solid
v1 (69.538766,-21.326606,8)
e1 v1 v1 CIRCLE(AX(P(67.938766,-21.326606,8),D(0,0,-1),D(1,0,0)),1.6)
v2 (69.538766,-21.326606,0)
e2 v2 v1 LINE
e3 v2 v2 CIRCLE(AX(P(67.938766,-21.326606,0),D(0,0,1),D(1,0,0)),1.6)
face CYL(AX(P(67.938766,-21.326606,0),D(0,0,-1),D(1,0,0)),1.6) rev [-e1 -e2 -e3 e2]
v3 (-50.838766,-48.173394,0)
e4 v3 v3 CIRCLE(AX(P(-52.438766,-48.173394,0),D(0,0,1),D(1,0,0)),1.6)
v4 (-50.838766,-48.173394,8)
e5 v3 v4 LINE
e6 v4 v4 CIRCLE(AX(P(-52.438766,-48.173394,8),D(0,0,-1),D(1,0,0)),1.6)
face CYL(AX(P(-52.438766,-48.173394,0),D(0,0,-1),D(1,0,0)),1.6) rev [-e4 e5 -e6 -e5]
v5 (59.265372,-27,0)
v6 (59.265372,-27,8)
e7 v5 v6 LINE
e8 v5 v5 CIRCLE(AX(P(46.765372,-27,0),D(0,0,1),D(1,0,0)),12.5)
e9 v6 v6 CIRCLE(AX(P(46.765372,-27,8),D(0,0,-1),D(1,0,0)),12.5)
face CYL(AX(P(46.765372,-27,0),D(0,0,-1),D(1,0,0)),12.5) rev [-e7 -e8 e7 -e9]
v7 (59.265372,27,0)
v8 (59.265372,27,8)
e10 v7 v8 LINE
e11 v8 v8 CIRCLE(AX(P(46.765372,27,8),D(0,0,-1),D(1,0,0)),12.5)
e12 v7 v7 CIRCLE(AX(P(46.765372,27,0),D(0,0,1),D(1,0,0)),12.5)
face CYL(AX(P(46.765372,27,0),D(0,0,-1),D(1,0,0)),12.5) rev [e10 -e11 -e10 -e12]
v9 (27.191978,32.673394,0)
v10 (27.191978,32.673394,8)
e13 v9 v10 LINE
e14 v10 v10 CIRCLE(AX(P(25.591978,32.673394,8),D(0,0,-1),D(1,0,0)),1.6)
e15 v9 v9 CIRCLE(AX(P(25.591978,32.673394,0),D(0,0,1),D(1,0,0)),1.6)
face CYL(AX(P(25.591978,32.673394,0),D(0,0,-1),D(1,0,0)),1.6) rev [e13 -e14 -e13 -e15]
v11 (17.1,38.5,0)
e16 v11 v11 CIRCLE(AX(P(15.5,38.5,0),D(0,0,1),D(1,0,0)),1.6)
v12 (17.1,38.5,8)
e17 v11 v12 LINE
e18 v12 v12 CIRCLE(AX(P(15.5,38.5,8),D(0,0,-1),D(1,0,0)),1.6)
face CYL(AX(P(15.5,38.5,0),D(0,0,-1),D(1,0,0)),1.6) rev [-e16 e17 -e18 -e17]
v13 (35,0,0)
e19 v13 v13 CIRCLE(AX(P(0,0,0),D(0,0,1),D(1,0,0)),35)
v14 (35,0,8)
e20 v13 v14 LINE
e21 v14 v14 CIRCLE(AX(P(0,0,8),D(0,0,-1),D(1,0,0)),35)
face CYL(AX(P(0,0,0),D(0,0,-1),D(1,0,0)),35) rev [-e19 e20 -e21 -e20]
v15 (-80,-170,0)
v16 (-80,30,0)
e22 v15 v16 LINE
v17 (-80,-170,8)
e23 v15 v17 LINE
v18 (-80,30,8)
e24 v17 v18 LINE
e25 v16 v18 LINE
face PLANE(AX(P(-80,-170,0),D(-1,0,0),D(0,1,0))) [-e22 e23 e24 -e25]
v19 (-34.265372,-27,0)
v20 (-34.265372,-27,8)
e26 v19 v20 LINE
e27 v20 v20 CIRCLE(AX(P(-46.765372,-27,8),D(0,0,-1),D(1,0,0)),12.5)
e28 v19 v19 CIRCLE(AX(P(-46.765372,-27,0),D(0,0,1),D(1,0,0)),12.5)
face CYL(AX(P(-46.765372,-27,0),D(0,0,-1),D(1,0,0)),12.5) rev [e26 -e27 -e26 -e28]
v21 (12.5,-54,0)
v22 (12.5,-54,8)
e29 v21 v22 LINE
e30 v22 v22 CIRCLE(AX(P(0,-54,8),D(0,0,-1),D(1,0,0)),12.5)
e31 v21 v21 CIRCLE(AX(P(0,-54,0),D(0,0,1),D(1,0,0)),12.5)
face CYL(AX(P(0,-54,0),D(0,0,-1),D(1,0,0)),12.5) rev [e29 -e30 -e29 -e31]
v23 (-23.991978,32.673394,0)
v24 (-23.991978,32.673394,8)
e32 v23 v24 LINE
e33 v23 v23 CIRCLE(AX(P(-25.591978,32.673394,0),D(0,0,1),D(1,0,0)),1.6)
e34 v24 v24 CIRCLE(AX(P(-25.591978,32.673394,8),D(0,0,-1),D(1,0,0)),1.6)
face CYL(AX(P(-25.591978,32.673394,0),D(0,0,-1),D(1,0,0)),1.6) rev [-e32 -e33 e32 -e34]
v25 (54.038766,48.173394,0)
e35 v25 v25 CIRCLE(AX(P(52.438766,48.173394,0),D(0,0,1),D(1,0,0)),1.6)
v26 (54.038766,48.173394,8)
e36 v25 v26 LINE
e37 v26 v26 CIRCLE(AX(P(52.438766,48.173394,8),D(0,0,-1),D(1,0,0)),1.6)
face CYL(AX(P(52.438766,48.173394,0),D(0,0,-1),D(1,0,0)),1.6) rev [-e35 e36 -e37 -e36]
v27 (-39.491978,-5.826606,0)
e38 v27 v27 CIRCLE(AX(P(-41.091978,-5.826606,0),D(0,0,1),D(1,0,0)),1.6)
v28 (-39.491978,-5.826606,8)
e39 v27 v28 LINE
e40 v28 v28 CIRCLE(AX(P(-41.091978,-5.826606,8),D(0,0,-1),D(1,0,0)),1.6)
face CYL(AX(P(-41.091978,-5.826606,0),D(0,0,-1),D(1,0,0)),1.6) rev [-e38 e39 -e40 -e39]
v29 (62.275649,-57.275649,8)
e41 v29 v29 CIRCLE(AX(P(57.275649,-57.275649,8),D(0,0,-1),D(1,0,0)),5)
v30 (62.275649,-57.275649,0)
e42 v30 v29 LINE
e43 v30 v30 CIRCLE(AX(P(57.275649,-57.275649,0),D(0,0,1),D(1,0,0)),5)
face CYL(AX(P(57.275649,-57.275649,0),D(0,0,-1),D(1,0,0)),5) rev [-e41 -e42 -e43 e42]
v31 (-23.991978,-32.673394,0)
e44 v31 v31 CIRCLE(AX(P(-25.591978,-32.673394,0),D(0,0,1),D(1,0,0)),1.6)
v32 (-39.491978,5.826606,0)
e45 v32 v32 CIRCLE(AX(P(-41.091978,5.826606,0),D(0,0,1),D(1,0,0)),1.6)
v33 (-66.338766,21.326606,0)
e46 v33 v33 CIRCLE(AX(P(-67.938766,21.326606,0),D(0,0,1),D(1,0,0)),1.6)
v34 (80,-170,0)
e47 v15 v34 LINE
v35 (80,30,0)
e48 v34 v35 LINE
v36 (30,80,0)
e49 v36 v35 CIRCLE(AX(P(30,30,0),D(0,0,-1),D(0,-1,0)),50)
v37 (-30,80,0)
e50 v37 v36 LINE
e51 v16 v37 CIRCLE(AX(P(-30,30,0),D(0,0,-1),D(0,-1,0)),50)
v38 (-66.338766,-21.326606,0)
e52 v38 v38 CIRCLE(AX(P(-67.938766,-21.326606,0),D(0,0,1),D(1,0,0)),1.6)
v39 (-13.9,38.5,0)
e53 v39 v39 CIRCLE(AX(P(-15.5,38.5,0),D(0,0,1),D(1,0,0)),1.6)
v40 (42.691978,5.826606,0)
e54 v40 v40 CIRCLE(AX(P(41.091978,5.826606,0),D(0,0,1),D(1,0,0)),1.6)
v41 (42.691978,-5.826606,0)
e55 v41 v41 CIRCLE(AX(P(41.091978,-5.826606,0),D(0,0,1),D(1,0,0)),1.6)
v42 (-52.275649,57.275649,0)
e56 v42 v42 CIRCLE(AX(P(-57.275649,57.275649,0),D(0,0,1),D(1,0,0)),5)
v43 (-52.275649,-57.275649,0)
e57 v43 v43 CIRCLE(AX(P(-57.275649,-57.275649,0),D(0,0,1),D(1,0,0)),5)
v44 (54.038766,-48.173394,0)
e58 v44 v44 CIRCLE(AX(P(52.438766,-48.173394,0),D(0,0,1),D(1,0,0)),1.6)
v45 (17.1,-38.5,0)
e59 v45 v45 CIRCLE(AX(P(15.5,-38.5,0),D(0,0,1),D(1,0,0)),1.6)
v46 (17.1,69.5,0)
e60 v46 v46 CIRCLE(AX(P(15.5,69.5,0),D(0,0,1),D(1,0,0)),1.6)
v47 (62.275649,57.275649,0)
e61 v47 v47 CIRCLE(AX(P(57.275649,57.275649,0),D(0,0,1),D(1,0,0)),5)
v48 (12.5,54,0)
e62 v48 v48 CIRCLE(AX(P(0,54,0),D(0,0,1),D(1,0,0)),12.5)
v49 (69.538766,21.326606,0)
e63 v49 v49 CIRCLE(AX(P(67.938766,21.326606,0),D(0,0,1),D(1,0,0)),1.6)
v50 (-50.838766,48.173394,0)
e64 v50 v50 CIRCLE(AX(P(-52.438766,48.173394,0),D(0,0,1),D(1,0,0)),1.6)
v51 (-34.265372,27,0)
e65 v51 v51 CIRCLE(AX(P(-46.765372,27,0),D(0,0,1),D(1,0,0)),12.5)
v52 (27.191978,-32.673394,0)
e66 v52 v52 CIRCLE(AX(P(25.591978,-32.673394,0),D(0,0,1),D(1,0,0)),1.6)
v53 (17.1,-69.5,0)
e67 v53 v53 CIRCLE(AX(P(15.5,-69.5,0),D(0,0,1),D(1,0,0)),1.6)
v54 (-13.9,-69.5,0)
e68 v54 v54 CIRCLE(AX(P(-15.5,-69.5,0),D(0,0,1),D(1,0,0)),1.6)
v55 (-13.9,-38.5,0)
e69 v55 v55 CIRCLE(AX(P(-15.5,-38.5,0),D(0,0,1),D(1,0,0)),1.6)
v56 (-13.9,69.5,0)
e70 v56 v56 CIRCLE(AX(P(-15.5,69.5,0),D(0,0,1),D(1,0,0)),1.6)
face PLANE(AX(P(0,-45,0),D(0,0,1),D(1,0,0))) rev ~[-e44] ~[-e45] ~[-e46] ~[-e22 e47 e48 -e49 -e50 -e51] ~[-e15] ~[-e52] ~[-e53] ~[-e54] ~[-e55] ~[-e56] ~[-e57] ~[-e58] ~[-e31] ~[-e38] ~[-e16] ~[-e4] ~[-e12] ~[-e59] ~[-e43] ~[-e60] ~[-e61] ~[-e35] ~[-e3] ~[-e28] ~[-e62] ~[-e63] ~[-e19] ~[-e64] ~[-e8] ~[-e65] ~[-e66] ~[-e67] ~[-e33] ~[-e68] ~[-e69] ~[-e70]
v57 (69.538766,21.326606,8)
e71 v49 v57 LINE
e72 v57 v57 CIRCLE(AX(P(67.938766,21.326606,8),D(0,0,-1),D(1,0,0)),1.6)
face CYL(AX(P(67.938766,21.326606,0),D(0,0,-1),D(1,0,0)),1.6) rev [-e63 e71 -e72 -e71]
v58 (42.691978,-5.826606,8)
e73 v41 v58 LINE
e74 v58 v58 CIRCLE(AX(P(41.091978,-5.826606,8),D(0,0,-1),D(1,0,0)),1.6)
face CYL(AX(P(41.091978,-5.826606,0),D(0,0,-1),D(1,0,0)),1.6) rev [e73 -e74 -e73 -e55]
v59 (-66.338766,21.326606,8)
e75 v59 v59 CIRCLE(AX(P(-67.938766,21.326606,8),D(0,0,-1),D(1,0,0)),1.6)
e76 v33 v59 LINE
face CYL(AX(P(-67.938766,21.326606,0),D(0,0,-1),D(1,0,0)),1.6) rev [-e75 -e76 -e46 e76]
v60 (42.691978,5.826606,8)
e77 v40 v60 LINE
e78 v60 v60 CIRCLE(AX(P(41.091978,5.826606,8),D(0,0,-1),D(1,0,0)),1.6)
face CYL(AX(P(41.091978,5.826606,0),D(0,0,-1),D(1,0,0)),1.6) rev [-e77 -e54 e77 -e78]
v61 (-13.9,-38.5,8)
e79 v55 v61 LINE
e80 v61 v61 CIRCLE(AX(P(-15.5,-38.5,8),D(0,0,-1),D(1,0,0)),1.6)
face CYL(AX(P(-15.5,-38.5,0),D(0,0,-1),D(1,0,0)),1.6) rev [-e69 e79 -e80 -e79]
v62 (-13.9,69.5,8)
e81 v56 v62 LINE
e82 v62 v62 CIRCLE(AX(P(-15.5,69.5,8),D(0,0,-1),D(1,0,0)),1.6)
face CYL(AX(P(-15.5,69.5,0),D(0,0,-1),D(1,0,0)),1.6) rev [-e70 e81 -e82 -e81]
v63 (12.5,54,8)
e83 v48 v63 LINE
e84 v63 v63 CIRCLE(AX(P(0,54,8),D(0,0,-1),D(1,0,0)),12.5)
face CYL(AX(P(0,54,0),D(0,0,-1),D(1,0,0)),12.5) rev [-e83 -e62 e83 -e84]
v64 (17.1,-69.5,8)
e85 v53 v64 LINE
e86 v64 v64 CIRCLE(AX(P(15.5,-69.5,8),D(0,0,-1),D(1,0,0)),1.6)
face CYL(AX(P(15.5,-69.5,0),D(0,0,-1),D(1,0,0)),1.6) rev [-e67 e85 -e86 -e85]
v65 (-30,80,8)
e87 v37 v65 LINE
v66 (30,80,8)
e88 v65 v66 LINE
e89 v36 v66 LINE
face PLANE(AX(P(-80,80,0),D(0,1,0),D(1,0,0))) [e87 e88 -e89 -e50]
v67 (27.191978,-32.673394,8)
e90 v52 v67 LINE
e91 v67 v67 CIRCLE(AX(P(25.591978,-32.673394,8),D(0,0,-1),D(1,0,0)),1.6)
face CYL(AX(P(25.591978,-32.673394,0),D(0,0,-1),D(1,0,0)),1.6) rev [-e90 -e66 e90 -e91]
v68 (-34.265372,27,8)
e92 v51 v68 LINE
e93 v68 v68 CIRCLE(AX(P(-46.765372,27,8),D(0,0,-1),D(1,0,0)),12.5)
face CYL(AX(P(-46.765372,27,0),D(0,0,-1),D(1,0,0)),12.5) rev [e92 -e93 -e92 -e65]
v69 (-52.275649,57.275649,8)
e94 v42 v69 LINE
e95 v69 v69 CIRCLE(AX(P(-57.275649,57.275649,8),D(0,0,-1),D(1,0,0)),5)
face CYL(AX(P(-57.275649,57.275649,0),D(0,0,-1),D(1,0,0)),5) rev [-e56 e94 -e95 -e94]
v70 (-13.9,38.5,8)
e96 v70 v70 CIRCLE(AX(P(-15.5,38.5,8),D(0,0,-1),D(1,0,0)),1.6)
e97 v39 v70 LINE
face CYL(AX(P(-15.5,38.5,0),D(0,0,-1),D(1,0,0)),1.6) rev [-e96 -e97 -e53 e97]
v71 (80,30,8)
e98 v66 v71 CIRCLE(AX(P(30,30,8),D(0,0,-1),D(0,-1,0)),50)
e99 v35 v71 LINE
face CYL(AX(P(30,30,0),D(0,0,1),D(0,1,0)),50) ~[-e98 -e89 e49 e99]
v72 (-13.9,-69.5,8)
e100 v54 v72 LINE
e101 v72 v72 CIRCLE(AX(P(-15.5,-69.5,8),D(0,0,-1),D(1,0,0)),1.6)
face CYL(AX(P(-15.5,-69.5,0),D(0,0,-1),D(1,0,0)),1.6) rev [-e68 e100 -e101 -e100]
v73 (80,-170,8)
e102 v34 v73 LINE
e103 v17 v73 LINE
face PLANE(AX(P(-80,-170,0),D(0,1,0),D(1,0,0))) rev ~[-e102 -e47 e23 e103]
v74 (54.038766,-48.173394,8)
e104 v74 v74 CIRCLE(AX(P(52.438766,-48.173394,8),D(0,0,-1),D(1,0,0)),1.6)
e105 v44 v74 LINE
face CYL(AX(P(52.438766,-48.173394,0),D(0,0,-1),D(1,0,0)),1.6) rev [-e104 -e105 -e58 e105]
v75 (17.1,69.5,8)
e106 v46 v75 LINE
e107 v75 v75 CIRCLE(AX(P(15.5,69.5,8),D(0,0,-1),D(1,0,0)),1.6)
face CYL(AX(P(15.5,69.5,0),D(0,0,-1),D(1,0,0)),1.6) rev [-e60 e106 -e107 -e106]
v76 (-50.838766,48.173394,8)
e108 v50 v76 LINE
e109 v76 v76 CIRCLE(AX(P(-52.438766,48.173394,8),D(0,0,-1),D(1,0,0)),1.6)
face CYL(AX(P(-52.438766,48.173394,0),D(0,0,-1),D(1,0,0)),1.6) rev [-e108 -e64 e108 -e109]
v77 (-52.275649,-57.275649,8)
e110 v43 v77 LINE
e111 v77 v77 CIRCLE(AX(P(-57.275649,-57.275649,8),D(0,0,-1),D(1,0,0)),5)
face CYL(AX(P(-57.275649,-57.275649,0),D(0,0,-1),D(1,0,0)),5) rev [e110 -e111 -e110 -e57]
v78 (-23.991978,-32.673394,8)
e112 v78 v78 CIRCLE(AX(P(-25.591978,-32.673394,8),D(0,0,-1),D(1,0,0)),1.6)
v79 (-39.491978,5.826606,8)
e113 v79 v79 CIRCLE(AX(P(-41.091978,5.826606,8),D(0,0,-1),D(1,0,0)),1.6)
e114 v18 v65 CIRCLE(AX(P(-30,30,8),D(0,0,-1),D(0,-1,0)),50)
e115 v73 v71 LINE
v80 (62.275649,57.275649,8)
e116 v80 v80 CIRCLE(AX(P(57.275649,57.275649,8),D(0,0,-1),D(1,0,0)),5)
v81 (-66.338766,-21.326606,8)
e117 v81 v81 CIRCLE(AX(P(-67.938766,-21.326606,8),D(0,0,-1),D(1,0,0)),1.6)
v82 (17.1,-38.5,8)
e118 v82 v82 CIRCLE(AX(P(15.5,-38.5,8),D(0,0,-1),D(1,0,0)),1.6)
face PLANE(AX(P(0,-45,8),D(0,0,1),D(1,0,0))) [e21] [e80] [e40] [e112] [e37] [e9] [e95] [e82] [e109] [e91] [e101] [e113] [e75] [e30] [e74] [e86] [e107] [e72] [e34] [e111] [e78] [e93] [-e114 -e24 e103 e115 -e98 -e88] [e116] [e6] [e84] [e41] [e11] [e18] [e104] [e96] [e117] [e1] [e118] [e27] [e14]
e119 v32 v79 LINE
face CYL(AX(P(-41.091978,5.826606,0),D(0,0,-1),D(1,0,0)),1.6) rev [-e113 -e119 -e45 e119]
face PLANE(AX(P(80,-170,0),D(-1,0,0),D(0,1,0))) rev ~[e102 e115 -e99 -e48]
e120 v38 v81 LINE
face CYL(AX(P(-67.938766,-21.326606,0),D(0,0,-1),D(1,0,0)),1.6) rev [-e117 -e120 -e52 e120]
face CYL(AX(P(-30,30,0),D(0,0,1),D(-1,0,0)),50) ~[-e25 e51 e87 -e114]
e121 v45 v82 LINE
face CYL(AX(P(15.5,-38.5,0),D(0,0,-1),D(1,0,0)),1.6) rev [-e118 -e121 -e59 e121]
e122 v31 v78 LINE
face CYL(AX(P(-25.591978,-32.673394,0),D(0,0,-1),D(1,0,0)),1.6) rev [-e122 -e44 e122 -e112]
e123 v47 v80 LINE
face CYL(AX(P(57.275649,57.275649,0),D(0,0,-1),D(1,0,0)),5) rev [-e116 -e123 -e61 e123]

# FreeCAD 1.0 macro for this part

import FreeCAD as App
import Part
import Sketcher
from FreeCAD import Vector
Q = App.Units.Quantity


def edges_at(feature, points):
    """Names of the edges that pass closest to the given points."""
    edges = feature.Shape.Edges
    near = lambda p: min(range(len(edges)), key=lambda i: edges[i].distToShape(Part.Vertex(*p))[0])
    return sorted({f"Edge{near(p) + 1}" for p in points})


def add_polygon(sketch, points):
    """Adds a closed chain of lines whose ends are joined by coincident constraints."""
    first, n = sketch.GeometryCount, len(points)
    for a, b in zip(points, points[1:] + points[:1]):
        sketch.addGeometry(Part.LineSegment(App.Vector(*a, 0), App.Vector(*b, 0)), False)
    for i in range(n):
        sketch.addConstraint(Sketcher.Constraint("Coincident", first + i, 2, first + (i + 1) % n, 1))

doc = App.newDocument("Part")
params = doc.addObject("Spreadsheet::Sheet", "Params")
for row, (alias, value) in enumerate([
    ("sketch1_width", "160 mm"),
    ("sketch1_height", "250 mm"),
    ("pad1_length", "8 mm"),
    ("sketch2_diameter", "70 mm"),
    ("sketch2_diameter2", "25 mm"),
    ("sketch2_diameter3", "3.2 mm"),
    ("sketch3_diameter", "10 mm"),
    ("fillet_radius", "50 mm"),
], start=1):
    params.set(f"A{row}", alias)
    params.set(f"B{row}", "=" + value)
    params.setAlias(f"B{row}", alias)

body = doc.addObject("PartDesign::Body", "Body")

# Sketch on XY plane
sketch1 = body.newObject("Sketcher::SketchObject", "Sketch")
sketch1.AttachmentSupport = (doc.getObject("XY_Plane"), [""])
sketch1.MapMode = "FlatFace"
add_polygon(sketch1, [(-80, 80), (-80, -170), (80, -170), (80, 80)])  # lines 0-3
sketch1.addConstraint([
    Sketcher.Constraint("Vertical", 0),
    Sketcher.Constraint("Horizontal", 1),
    Sketcher.Constraint("Vertical", 2),
    Sketcher.Constraint("Horizontal", 3),
    Sketcher.Constraint("DistanceX", 1, 1, 1, 2, Q("160 mm")),
    Sketcher.Constraint("DistanceY", 0, 2, 0, 1, Q("250 mm")),
    Sketcher.Constraint("DistanceX", 0, 2, -1, 1, Q("80 mm")),
    Sketcher.Constraint("DistanceY", 0, 2, -1, 1, Q("170 mm")),
])
sketch1.setExpression("Constraints[8]", "Params.sketch1_width")
sketch1.setExpression("Constraints[9]", "Params.sketch1_height")
pad1 = body.newObject("PartDesign::Pad", "Pad")
pad1.Profile = sketch1
pad1.setExpression("Length", "Params.pad1_length")

# Sketch on XY plane
sketch2 = body.newObject("Sketcher::SketchObject", "Sketch001")
sketch2.AttachmentSupport = (doc.getObject("XY_Plane"), [""])
sketch2.MapMode = "FlatFace"
sketch2.addGeometry([
    Part.Circle(Vector(0, 0, 0), Vector(0, 0, 1), 35),  # 0
    Part.Circle(Vector(-15.5, 69.5, 0), Vector(0, 0, 1), 1.6),  # 1
    Part.Circle(Vector(15.5, 69.5, 0), Vector(0, 0, 1), 1.6),  # 2
    Part.Circle(Vector(15.5, 38.5, 0), Vector(0, 0, 1), 1.6),  # 3
    Part.Circle(Vector(-15.5, 38.5, 0), Vector(0, 0, 1), 1.6),  # 4
    Part.Circle(Vector(0, 54, 0), Vector(0, 0, 1), 12.5),  # 5
    Part.Circle(Vector(-67.938766, 21.326606, 0), Vector(0, 0, 1), 1.6),  # 6
    Part.Circle(Vector(-41.091978, 5.826606, 0), Vector(0, 0, 1), 1.6),  # 7
    Part.Circle(Vector(-25.591978, 32.673394, 0), Vector(0, 0, 1), 1.6),  # 8
    Part.Circle(Vector(-52.438766, 48.173394, 0), Vector(0, 0, 1), 1.6),  # 9
    Part.Circle(Vector(-46.765372, 27, 0), Vector(0, 0, 1), 12.5),  # 10
    Part.Circle(Vector(-52.438766, -48.173394, 0), Vector(0, 0, 1), 1.6),  # 11
    Part.Circle(Vector(-25.591978, -32.673394, 0), Vector(0, 0, 1), 1.6),  # 12
    Part.Circle(Vector(-41.091978, -5.826606, 0), Vector(0, 0, 1), 1.6),  # 13
    Part.Circle(Vector(-67.938766, -21.326606, 0), Vector(0, 0, 1), 1.6),  # 14
    Part.Circle(Vector(-46.765372, -27, 0), Vector(0, 0, 1), 12.5),  # 15
    Part.Circle(Vector(15.5, -69.5, 0), Vector(0, 0, 1), 1.6),  # 16
    Part.Circle(Vector(15.5, -38.5, 0), Vector(0, 0, 1), 1.6),  # 17
    Part.Circle(Vector(-15.5, -38.5, 0), Vector(0, 0, 1), 1.6),  # 18
    Part.Circle(Vector(-15.5, -69.5, 0), Vector(0, 0, 1), 1.6),  # 19
    Part.Circle(Vector(0, -54, 0), Vector(0, 0, 1), 12.5),  # 20
    Part.Circle(Vector(67.938766, -21.326606, 0), Vector(0, 0, 1), 1.6),  # 21
    Part.Circle(Vector(41.091978, -5.826606, 0), Vector(0, 0, 1), 1.6),  # 22
    Part.Circle(Vector(25.591978, -32.673394, 0), Vector(0, 0, 1), 1.6),  # 23
    Part.Circle(Vector(52.438766, -48.173394, 0), Vector(0, 0, 1), 1.6),  # 24
    Part.Circle(Vector(46.765372, -27, 0), Vector(0, 0, 1), 12.5),  # 25
    Part.Circle(Vector(52.438766, 48.173394, 0), Vector(0, 0, 1), 1.6),  # 26
    Part.Circle(Vector(25.591978, 32.673394, 0), Vector(0, 0, 1), 1.6),  # 27
    Part.Circle(Vector(41.091978, 5.826606, 0), Vector(0, 0, 1), 1.6),  # 28
    Part.Circle(Vector(67.938766, 21.326606, 0), Vector(0, 0, 1), 1.6),  # 29
    Part.Circle(Vector(46.765372, 27, 0), Vector(0, 0, 1), 12.5),  # 30
], False)
sketch2.addConstraint([
    Sketcher.Constraint("Coincident", 0, 3, -1, 1),
    Sketcher.Constraint("Equal", 1, 2),
    Sketcher.Constraint("Equal", 2, 3),
    Sketcher.Constraint("Equal", 3, 4),
    Sketcher.Constraint("Equal", 4, 6),
    Sketcher.Constraint("Equal", 6, 7),
    Sketcher.Constraint("Equal", 7, 8),
    Sketcher.Constraint("Equal", 8, 9),
    Sketcher.Constraint("Equal", 5, 10),
    Sketcher.Constraint("Equal", 9, 11),
    Sketcher.Constraint("Equal", 11, 12),
    Sketcher.Constraint("Equal", 12, 13),
    Sketcher.Constraint("Equal", 13, 14),
    Sketcher.Constraint("Equal", 10, 15),
    Sketcher.Constraint("Equal", 14, 16),
    Sketcher.Constraint("Equal", 16, 17),
    Sketcher.Constraint("Equal", 17, 18),
    Sketcher.Constraint("Equal", 18, 19),
    Sketcher.Constraint("Equal", 15, 20),
    Sketcher.Constraint("Equal", 19, 21),
    Sketcher.Constraint("Equal", 21, 22),
    Sketcher.Constraint("Equal", 22, 23),
    Sketcher.Constraint("Equal", 23, 24),
    Sketcher.Constraint("Equal", 20, 25),
    Sketcher.Constraint("Equal", 24, 26),
    Sketcher.Constraint("Equal", 26, 27),
    Sketcher.Constraint("Equal", 27, 28),
    Sketcher.Constraint("Equal", 28, 29),
    Sketcher.Constraint("Equal", 25, 30),
    Sketcher.Constraint("Symmetric", 1, 3, 16, 3, -1, 1),
    Sketcher.Constraint("Symmetric", 4, 3, 17, 3, -1, 1),
    Sketcher.Constraint("Symmetric", 3, 3, 18, 3, -1, 1),
    Sketcher.Constraint("Symmetric", 2, 3, 19, 3, -1, 1),
    Sketcher.Constraint("Symmetric", 5, 3, 20, 3, -1, 1),
    Sketcher.Constraint("Symmetric", 6, 3, 21, 3, -1, 1),
    Sketcher.Constraint("Symmetric", 7, 3, 22, 3, -1, 1),
    Sketcher.Constraint("Symmetric", 8, 3, 23, 3, -1, 1),
    Sketcher.Constraint("Symmetric", 9, 3, 24, 3, -1, 1),
    Sketcher.Constraint("Symmetric", 10, 3, 25, 3, -1, 1),
    Sketcher.Constraint("Symmetric", 11, 3, 26, 3, -1, 1),
    Sketcher.Constraint("Symmetric", 12, 3, 27, 3, -1, 1),
    Sketcher.Constraint("Symmetric", 13, 3, 28, 3, -1, 1),
    Sketcher.Constraint("Symmetric", 14, 3, 29, 3, -1, 1),
    Sketcher.Constraint("Symmetric", 15, 3, 30, 3, -1, 1),
    Sketcher.Constraint("Symmetric", 1, 3, 2, 3, -2),
    Sketcher.Constraint("Symmetric", 3, 3, 4, 3, -2),
    Sketcher.Constraint("Symmetric", 14, 3, 21, 3, -2),
    Sketcher.Constraint("Symmetric", 13, 3, 22, 3, -2),
    Sketcher.Constraint("Symmetric", 12, 3, 23, 3, -2),
    Sketcher.Constraint("Symmetric", 11, 3, 24, 3, -2),
    Sketcher.Constraint("Symmetric", 15, 3, 25, 3, -2),
    Sketcher.Constraint("PointOnObject", 5, 3, -2),
    Sketcher.Constraint("Vertical", 2, 3, 3, 3),
    Sketcher.Constraint("Diameter", 0, Q("70 mm")),
    Sketcher.Constraint("Diameter", 5, Q("25 mm")),
    Sketcher.Constraint("Diameter", 1, Q("3.2 mm")),
    Sketcher.Constraint("DistanceY", -1, 1, 5, 3, Q("54 mm")),
    Sketcher.Constraint("DistanceY", -1, 1, 10, 3, Q("27 mm")),
    Sketcher.Constraint("DistanceX", 1, 3, 2, 3, Q("31 mm")),
    Sketcher.Constraint("DistanceY", 3, 3, 2, 3, Q("31 mm")),
    Sketcher.Constraint("DistanceY", 11, 3, 7, 3, Q("54 mm")),
    Sketcher.Constraint("DistanceY", -1, 1, 1, 3, Q("69.5 mm")),
    Sketcher.Constraint("DistanceY", 7, 3, 6, 3, Q("15.5 mm")),
    Sketcher.Constraint("DistanceX", 7, 3, 8, 3, Q("15.5 mm")),
    Sketcher.Constraint("DistanceX", 6, 3, 9, 3, Q("15.5 mm")),
    Sketcher.Constraint("DistanceY", 8, 3, 9, 3, Q("15.5 mm")),
    Sketcher.Constraint("DistanceX", 8, 3, -1, 1, Q("25.591978 mm")),
    Sketcher.Constraint("DistanceX", 6, 3, 7, 3, Q("26.846788 mm")),
    Sketcher.Constraint("DistanceY", 7, 3, 8, 3, Q("26.846788 mm")),
    Sketcher.Constraint("DistanceX", 10, 3, 4, 3, Q("31.265372 mm")),
])
sketch2.setExpression("Constraints[53]", "Params.sketch2_diameter")
sketch2.setExpression("Constraints[54]", "Params.sketch2_diameter2")
sketch2.setExpression("Constraints[55]", "Params.sketch2_diameter3")
pocket1 = body.newObject("PartDesign::Pocket", "Pocket")
pocket1.Profile = sketch2
pocket1.Type = "ThroughAll"
pocket1.Reversed = True

# Sketch on XY plane
sketch3 = body.newObject("Sketcher::SketchObject", "Sketch002")
sketch3.AttachmentSupport = (doc.getObject("XY_Plane"), [""])
sketch3.MapMode = "FlatFace"
sketch3.addGeometry([
    Part.Circle(Vector(57.275649, 57.275649, 0), Vector(0, 0, 1), 5),
    Part.Circle(Vector(-57.275649, 57.275649, 0), Vector(0, 0, 1), 5),
    Part.Circle(Vector(-57.275649, -57.275649, 0), Vector(0, 0, 1), 5),
    Part.Circle(Vector(57.275649, -57.275649, 0), Vector(0, 0, 1), 5),
], False)
sketch3.addConstraint([
    Sketcher.Constraint("Equal", 0, 1),
    Sketcher.Constraint("Equal", 1, 2),
    Sketcher.Constraint("Equal", 2, 3),
    Sketcher.Constraint("Symmetric", 0, 3, 2, 3, -1, 1),
    Sketcher.Constraint("Symmetric", 1, 3, 3, 3, -1, 1),
    Sketcher.Constraint("Symmetric", 0, 3, 1, 3, -2),
    Sketcher.Constraint("Diameter", 0, Q("10 mm")),
    Sketcher.Constraint("DistanceX", 1, 3, 0, 3, Q("114.551298 mm")),
    Sketcher.Constraint("DistanceY", 2, 3, 1, 3, Q("114.551298 mm")),
])
sketch3.setExpression("Constraints[6]", "Params.sketch3_diameter")
pocket2 = body.newObject("PartDesign::Pocket", "Pocket001")
pocket2.Profile = sketch3
pocket2.Type = "ThroughAll"
pocket2.Reversed = True
doc.recompute()

fillet = body.newObject("PartDesign::Fillet", "Fillet")
fillet.Base = (pocket2, edges_at(pocket2, [(80, 80, 4), (-80, 80, 4)]))
fillet.setExpression("Radius", "Params.fillet_radius")

doc.recompute()
